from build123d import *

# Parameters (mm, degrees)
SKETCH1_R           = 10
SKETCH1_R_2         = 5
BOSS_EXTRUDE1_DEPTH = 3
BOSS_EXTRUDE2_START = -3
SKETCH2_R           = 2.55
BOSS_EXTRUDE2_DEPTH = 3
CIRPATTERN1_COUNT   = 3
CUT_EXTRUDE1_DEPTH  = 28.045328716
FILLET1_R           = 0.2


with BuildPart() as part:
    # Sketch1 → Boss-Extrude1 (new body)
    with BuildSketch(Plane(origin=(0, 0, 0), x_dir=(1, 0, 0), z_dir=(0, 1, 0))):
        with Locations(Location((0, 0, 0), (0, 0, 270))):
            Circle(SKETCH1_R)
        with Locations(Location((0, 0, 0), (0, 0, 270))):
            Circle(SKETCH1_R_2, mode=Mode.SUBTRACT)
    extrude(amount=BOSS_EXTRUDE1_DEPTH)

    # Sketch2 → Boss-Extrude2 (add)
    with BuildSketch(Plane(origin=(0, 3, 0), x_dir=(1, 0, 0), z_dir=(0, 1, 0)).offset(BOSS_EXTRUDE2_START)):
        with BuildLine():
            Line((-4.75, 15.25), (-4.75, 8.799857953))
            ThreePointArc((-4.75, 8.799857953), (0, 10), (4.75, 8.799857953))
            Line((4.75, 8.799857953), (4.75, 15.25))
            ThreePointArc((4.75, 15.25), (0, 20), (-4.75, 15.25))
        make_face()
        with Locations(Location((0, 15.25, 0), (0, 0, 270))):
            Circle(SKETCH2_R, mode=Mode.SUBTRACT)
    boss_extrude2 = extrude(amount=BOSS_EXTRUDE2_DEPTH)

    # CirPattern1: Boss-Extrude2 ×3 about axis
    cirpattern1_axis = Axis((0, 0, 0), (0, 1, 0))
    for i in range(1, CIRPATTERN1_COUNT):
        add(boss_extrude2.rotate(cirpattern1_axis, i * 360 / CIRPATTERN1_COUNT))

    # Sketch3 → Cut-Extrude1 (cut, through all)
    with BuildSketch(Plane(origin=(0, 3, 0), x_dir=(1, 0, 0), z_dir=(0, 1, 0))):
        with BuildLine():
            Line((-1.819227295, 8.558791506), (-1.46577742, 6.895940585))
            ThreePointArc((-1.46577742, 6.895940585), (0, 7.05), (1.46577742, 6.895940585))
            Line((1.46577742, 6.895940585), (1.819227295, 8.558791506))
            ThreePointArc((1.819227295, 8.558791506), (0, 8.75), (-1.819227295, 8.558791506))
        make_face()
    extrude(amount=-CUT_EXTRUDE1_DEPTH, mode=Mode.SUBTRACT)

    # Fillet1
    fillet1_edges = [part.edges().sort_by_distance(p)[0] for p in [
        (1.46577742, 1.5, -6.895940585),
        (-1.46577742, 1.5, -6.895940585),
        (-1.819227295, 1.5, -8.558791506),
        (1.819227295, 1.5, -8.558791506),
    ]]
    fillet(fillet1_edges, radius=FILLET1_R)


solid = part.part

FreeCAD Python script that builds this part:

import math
import FreeCAD as App
import Part
import Sketcher
from FreeCAD import Vector
Q = App.Units.Quantity


def edges_at(feature, points):
    """Names of the edges that pass closest to the given points."""
    edges = feature.Shape.Edges
    near = lambda p: min(range(len(edges)), key=lambda i: edges[i].distToShape(Part.Vertex(*p))[0])
    return sorted({f"Edge{near(p) + 1}" for p in points})

doc = App.newDocument("Part")
body = doc.addObject("PartDesign::Body", "Body")

# Sketch on XZ plane
sketch1 = body.newObject("Sketcher::SketchObject", "Sketch")
sketch1.AttachmentSupport = (doc.getObject("XZ_Plane"), [""])
sketch1.MapMode = "FlatFace"
sketch1.addGeometry([
    Part.Circle(Vector(0, 0, 0), Vector(0, 0, 1), 10),
    Part.Circle(Vector(0, 0, 0), Vector(0, 0, 1), 5),
], False)
sketch1.addConstraint([
    Sketcher.Constraint("Coincident", 0, 3, -1, 1),
    Sketcher.Constraint("Coincident", 1, 3, -1, 1),
    Sketcher.Constraint("Diameter", 0, Q("20 mm")),
    Sketcher.Constraint("Diameter", 1, Q("10 mm")),
])
pad1 = body.newObject("PartDesign::Pad", "Pad")
pad1.Profile = sketch1
pad1.Length = 3
pad1.Reversed = True

# Sketch on XZ plane
sketch2 = body.newObject("Sketcher::SketchObject", "Sketch001")
sketch2.AttachmentSupport = (doc.getObject("XZ_Plane"), [""])
sketch2.MapMode = "FlatFace"
sketch2.addGeometry([
    Part.LineSegment(Vector(-4.75, -15.25, 0), Vector(-4.75, -8.799858, 0)),  # 0
    Part.ArcOfCircle(Part.Circle(Vector(0, 0, 0), Vector(0, 0, 1), 10), math.radians(-118.35935), math.radians(-61.64065)),  # 1
    Part.LineSegment(Vector(4.75, -8.799858, 0), Vector(4.75, -15.25, 0)),  # 2
    Part.ArcOfCircle(Part.Circle(Vector(0, -15.25, 0), Vector(0, 0, 1), 4.75), math.radians(180), math.radians(360)),  # 3
    Part.Circle(Vector(0, -15.25, 0), Vector(0, 0, 1), 2.55),  # 4
], False)
sketch2.addConstraint([
    Sketcher.Constraint("Coincident", 0, 2, 1, 1),
    Sketcher.Constraint("Coincident", 1, 2, 2, 1),
    Sketcher.Constraint("Tangent", 2, 2, 3, 2),
    Sketcher.Constraint("Tangent", 3, 1, 0, 1),
    Sketcher.Constraint("Vertical", 0),
    Sketcher.Constraint("Vertical", 2),
    Sketcher.Constraint("Coincident", 1, 3, -1, 1),
    Sketcher.Constraint("Coincident", 4, 3, 3, 3),
    Sketcher.Constraint("PointOnObject", 3, 3, -2),
    Sketcher.Constraint("Radius", 1, Q("10 mm")),
    Sketcher.Constraint("Diameter", 4, Q("5.1 mm")),
    Sketcher.Constraint("Radius", 3, Q("4.75 mm")),
    Sketcher.Constraint("DistanceY", 3, 3, -1, 1, Q("15.25 mm")),
])
pad2 = body.newObject("PartDesign::Pad", "Pad001")
pad2.Profile = sketch2
pad2.Length = 3
pad2.Reversed = True
doc.recompute()

polarpattern = body.newObject("PartDesign::PolarPattern", "PolarPattern")
polarpattern.Originals = [pad2]
polarpattern.Axis = (doc.getObject("Y_Axis"), [""])
polarpattern.Angle = 360
polarpattern.Occurrences = 3
body.Tip = polarpattern

# Sketch on XZ plane
sketch3 = body.newObject("Sketcher::SketchObject", "Sketch002")
sketch3.AttachmentSupport = (doc.getObject("XZ_Plane"), [""])
sketch3.MapMode = "FlatFace"
sketch3.AttachmentOffset = App.Placement(Vector(0, 0, -3), App.Rotation())
sketch3.addGeometry([
    Part.LineSegment(Vector(-1.819227, -8.558792, 0), Vector(-1.465777, -6.895941, 0)),
    Part.ArcOfCircle(Part.Circle(Vector(0, 0, 0), Vector(0, 0, 1), 7.05), math.radians(-102), math.radians(-78)),
    Part.LineSegment(Vector(1.465777, -6.895941, 0), Vector(1.819227, -8.558792, 0)),
    Part.ArcOfCircle(Part.Circle(Vector(0, 0, 0), Vector(0, 0, 1), 8.75), math.radians(-102), math.radians(-78)),
], False)
sketch3.addConstraint([
    Sketcher.Constraint("Coincident", 0, 2, 1, 1),
    Sketcher.Constraint("Coincident", 1, 2, 2, 1),
    Sketcher.Constraint("Coincident", 2, 2, 3, 2),
    Sketcher.Constraint("Coincident", 3, 1, 0, 1),
    Sketcher.Constraint("Coincident", 1, 3, -1, 1),
    Sketcher.Constraint("Coincident", 3, 3, -1, 1),
    Sketcher.Constraint("Horizontal", 0, 2, 1, 2),
    Sketcher.Constraint("Horizontal", 2, 2, 3, 1),
    Sketcher.Constraint("Angle", 0, Q("78 deg")),
    Sketcher.Constraint("Radius", 1, Q("7.05 mm")),
    Sketcher.Constraint("Radius", 3, Q("8.75 mm")),
    Sketcher.Constraint("DistanceY", 0, 2, -1, 1, Q("6.895941 mm")),
])
pocket1 = body.newObject("PartDesign::Pocket", "Pocket")
pocket1.Profile = sketch3
pocket1.Type = "ThroughAll"
pocket1.Reversed = True
doc.recompute()

fillet = body.newObject("PartDesign::Fillet", "Fillet")
fillet.Base = (pocket1, edges_at(pocket1, [
    (1.466, 1.5, -6.896),
    (-1.466, 1.5, -6.896),
    (-1.819, 1.5, -8.559),
    (1.819, 1.5, -8.559),
]))
fillet.Radius = 0.2

doc.recompute()
